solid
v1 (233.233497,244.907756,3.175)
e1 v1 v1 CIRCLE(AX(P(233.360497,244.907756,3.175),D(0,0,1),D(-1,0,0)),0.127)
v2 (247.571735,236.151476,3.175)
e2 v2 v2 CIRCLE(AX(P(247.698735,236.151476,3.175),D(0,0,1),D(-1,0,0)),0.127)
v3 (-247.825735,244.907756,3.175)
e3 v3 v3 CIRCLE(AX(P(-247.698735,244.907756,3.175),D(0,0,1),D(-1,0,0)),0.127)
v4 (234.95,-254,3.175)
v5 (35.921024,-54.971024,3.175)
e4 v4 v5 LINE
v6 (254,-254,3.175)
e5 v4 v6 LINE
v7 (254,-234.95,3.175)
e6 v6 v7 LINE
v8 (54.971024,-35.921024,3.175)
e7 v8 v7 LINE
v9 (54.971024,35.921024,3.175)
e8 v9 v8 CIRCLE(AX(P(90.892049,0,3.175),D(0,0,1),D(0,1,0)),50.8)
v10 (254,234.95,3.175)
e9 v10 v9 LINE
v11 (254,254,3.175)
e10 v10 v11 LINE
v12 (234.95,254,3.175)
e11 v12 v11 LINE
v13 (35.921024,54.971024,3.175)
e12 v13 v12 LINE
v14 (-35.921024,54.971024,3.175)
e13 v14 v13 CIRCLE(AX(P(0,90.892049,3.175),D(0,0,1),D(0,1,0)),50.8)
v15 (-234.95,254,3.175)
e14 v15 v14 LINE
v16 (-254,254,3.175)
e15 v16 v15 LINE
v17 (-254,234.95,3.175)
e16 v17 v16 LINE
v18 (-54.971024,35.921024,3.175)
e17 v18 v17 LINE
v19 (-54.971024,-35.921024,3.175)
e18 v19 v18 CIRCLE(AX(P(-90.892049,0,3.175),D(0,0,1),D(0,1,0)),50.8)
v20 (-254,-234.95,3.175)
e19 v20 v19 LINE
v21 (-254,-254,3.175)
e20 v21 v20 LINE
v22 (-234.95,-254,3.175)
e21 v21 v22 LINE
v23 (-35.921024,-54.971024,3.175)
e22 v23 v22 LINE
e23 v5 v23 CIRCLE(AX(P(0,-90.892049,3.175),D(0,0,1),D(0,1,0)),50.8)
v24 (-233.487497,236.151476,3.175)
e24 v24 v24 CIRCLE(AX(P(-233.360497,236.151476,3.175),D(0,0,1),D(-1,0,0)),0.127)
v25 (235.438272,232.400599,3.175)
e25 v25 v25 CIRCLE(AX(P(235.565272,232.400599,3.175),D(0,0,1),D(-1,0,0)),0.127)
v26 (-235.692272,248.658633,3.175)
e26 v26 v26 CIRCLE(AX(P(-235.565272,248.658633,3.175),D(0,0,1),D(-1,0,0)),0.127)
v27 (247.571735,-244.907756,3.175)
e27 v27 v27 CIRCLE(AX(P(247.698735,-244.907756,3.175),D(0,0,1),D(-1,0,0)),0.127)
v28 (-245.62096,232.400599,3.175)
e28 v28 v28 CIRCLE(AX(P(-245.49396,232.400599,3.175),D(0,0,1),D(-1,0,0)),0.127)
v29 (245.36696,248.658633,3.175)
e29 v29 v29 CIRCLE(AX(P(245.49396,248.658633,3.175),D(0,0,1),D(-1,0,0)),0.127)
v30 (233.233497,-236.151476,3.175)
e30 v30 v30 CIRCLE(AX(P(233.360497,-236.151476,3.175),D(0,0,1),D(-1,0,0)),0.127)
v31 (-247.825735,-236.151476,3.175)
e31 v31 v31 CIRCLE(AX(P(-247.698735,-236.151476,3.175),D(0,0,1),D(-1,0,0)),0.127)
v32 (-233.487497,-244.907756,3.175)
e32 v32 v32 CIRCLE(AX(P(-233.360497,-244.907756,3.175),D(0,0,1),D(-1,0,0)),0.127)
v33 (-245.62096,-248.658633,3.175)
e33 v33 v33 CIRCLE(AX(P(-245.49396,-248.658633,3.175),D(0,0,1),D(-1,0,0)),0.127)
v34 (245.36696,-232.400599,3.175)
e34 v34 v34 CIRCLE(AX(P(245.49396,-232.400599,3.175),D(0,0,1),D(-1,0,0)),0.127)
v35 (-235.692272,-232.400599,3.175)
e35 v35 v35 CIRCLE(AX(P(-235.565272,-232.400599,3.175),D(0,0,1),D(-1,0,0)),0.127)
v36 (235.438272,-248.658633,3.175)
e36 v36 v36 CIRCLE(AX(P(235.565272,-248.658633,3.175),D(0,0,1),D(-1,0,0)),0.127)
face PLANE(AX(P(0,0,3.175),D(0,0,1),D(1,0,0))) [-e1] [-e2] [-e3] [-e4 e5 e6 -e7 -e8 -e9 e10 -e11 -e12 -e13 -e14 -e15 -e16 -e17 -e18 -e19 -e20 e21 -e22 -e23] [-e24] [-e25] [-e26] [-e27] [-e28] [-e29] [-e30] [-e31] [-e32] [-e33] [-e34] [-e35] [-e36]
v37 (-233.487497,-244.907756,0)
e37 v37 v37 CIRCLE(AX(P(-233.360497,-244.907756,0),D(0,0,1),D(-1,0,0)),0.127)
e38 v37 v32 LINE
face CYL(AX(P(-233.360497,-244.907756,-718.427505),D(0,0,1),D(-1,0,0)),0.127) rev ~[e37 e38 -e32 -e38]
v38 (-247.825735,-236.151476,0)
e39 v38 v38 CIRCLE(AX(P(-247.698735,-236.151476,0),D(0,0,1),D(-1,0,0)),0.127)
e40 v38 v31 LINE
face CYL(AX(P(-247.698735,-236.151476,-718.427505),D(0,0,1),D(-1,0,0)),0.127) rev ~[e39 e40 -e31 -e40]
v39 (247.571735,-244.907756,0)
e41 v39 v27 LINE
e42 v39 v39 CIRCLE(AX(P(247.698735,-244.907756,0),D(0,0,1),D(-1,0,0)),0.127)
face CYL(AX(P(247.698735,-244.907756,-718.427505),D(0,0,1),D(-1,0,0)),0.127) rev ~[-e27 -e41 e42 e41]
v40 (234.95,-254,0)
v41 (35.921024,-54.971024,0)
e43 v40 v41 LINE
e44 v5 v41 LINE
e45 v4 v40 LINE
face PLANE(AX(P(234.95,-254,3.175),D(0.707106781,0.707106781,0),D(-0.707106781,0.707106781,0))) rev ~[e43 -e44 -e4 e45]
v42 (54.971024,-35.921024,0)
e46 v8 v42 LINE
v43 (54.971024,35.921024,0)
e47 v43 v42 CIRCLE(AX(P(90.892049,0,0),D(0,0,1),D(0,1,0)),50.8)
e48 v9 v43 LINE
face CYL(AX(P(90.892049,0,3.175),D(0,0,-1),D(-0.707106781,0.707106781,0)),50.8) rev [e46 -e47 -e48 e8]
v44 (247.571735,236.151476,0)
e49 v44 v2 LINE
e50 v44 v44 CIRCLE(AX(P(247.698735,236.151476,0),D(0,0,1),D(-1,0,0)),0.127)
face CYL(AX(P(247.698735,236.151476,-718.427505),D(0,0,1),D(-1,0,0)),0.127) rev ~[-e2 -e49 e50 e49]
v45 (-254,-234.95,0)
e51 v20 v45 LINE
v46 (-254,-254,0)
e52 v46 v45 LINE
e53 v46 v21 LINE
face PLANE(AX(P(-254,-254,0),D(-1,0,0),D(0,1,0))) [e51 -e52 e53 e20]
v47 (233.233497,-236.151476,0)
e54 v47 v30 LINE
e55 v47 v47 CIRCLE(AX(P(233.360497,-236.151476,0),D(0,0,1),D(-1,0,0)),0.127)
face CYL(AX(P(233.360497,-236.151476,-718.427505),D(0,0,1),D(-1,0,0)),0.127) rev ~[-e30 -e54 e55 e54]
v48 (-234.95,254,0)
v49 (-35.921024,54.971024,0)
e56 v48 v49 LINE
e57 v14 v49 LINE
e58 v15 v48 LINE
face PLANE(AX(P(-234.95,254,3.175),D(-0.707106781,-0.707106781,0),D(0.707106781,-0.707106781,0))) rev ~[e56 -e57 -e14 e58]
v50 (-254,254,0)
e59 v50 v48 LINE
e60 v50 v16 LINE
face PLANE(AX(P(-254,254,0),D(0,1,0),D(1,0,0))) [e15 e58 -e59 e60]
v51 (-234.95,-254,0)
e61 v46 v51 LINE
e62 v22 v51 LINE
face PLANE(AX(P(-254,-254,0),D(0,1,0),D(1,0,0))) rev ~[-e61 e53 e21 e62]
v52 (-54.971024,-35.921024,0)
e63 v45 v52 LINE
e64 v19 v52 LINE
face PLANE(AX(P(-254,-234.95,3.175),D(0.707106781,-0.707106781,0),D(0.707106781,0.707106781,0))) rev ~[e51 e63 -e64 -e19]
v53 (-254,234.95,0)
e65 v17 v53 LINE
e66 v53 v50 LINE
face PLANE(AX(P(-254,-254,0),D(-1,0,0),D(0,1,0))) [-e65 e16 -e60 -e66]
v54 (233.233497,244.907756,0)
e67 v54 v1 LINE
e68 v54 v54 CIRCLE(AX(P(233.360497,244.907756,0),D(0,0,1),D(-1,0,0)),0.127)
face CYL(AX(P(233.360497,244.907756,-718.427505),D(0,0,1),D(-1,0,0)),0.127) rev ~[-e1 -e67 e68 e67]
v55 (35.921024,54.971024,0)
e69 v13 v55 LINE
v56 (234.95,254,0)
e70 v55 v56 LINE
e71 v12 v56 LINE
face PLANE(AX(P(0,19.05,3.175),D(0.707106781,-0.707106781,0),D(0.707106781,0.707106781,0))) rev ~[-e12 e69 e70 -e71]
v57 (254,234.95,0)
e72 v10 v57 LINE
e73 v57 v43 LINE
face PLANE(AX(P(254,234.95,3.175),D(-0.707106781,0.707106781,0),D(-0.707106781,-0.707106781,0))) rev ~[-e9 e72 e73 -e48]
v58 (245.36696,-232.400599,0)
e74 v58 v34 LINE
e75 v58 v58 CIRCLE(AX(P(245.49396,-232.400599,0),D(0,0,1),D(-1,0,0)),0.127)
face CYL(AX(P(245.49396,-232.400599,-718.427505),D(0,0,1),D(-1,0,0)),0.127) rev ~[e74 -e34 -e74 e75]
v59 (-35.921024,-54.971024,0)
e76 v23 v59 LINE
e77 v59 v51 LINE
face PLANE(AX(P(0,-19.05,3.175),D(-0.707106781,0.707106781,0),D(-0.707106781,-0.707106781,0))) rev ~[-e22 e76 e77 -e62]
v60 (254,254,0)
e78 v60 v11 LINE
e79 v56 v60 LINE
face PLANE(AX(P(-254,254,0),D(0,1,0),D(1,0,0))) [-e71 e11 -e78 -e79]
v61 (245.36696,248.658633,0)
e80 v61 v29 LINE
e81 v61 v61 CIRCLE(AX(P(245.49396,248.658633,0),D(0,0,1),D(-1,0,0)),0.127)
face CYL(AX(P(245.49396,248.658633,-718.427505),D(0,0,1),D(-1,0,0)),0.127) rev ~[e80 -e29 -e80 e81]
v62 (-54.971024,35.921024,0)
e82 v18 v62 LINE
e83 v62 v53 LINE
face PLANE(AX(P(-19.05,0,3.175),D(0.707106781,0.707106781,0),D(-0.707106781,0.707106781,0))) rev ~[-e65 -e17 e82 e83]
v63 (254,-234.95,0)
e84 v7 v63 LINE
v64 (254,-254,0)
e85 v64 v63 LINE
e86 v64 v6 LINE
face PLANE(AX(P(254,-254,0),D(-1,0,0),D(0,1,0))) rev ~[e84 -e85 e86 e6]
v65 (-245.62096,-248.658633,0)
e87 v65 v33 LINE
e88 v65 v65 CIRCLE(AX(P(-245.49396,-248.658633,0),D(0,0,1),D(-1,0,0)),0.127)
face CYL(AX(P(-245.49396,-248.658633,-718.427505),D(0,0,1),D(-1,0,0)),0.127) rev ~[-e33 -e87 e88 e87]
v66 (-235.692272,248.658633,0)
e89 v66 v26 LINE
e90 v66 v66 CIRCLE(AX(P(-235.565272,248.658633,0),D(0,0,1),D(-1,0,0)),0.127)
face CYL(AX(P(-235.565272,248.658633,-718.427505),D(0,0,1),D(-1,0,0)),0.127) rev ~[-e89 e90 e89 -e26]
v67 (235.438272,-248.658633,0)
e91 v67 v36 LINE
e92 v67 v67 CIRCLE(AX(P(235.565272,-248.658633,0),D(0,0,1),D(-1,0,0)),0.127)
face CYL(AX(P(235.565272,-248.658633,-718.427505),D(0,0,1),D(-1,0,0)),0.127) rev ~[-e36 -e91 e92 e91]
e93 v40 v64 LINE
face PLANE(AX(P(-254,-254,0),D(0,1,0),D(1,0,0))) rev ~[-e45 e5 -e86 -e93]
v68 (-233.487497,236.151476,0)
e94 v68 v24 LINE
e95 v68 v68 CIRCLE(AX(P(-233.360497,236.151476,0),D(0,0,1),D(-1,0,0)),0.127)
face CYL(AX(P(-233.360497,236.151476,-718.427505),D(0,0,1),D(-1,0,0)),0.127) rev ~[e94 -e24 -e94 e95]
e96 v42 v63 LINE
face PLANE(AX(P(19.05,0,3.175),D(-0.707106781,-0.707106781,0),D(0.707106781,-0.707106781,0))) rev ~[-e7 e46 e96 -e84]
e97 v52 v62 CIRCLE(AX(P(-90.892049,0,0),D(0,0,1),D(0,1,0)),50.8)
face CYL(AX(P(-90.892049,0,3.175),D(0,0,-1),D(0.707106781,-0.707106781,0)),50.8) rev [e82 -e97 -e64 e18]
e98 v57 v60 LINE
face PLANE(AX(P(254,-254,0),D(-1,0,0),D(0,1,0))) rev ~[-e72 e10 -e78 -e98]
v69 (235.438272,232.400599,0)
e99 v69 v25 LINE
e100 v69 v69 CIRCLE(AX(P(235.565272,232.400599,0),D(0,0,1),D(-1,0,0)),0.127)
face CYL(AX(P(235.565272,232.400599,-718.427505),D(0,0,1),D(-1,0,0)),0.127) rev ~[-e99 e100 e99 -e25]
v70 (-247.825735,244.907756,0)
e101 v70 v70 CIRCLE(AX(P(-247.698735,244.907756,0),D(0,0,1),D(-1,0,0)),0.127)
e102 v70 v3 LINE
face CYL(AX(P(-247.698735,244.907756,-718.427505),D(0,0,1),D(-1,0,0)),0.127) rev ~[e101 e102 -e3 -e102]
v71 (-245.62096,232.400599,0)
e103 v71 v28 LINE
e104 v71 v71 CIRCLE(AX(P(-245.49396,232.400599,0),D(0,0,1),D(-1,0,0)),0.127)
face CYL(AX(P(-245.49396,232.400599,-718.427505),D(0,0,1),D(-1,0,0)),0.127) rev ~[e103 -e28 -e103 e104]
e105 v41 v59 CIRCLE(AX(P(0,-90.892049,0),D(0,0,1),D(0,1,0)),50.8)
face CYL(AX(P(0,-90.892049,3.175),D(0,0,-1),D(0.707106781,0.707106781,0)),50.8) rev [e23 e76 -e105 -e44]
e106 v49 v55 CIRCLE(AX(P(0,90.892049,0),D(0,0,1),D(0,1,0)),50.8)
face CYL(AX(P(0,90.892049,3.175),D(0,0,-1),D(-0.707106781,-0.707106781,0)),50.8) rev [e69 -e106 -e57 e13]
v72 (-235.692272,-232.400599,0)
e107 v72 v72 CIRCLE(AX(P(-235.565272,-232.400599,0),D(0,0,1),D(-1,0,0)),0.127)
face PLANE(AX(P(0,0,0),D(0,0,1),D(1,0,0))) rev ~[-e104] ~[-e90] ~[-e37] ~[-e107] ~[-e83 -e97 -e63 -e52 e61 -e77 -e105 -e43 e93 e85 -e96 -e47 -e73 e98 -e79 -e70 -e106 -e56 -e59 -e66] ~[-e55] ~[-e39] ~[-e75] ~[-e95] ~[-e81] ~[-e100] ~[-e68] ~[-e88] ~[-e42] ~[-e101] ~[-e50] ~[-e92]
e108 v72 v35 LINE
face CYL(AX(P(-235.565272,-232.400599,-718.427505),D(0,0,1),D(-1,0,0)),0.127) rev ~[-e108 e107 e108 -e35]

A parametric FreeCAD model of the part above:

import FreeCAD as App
import Part
import Sketcher

V = App.Vector
Q = App.Units.Quantity


def edges_at(feature, points):
    """Names of the edges that pass closest to the given points."""
    edges = feature.Shape.Edges
    near = lambda p: min(range(len(edges)), key=lambda i: edges[i].distToShape(Part.Vertex(*p))[0])
    return sorted({f"Edge{near(p) + 1}" for p in points})


def add_polygon(sketch, points):
    """Adds a closed chain of lines whose ends are joined by coincident constraints."""
    first, n = sketch.GeometryCount, len(points)
    for a, b in zip(points, points[1:] + points[:1]):
        sketch.addGeometry(Part.LineSegment(App.Vector(*a, 0), App.Vector(*b, 0)), False)
    for i in range(n):
        sketch.addConstraint(Sketcher.Constraint("Coincident", first + i, 2, first + (i + 1) % n, 1))

doc = App.newDocument("Part")
body = doc.addObject("PartDesign::Body", "Body")

# Sketch on XY plane
sketch1 = body.newObject("Sketcher::SketchObject", "Sketch")
sketch1.AttachmentSupport = (doc.getObject("XY_Plane"), [""])
sketch1.MapMode = "FlatFace"
add_polygon(sketch1, [(-254, 254), (-254, -254), (254, -254), (254, 254)])  # lines 0-3
sketch1.addConstraint(Sketcher.Constraint("Vertical", 0))
sketch1.addConstraint(Sketcher.Constraint("Horizontal", 1))
sketch1.addConstraint(Sketcher.Constraint("Vertical", 2))
sketch1.addConstraint(Sketcher.Constraint("Horizontal", 3))
sketch1.addConstraint(Sketcher.Constraint("Symmetric", 0, 2, 2, 2, -1, 1))
sketch1.addConstraint(Sketcher.Constraint("Equal", 3, 0))
sketch1.addConstraint(Sketcher.Constraint("DistanceX", 1, 1, 1, 2, Q("20 in")))
pad1 = body.newObject("PartDesign::Pad", "Pad")
pad1.Profile = sketch1
pad1.Length = Q("0.125 in")

# Sketch on XY plane
sketch2 = body.newObject("Sketcher::SketchObject", "Sketch001")
sketch2.AttachmentSupport = (doc.getObject("XY_Plane"), [""])
sketch2.MapMode = "FlatFace"
sketch2.AttachmentOffset = App.Placement(V(0, 0, 0.125 * 25.4), App.Rotation())
add_polygon(sketch2, [(-19, 0), (-254, 235), (-254, -235)])  # lines 0-2
add_polygon(sketch2, [(-235, 254), (0, 19), (235, 254)])  # lines 3-5
add_polygon(sketch2, [(254, -235), (254, 235), (19, 0)])  # lines 6-8
add_polygon(sketch2, [(-235, -254), (235, -254), (0, -19)])  # lines 9-11
sketch2.addConstraint(Sketcher.Constraint("Vertical", 1))
sketch2.addConstraint(Sketcher.Constraint("Horizontal", 5))
sketch2.addConstraint(Sketcher.Constraint("Vertical", 6))
sketch2.addConstraint(Sketcher.Constraint("Horizontal", 9))
sketch2.addConstraint(Sketcher.Constraint("Symmetric", 1, 2, 6, 2, -1, 1))
sketch2.addConstraint(Sketcher.Constraint("Symmetric", 2, 2, 7, 2, -1, 1))
sketch2.addConstraint(Sketcher.Constraint("Symmetric", 5, 2, 9, 2, -1, 1))
sketch2.addConstraint(Sketcher.Constraint("Symmetric", 3, 2, 10, 2, -1, 1))
sketch2.addConstraint(Sketcher.Constraint("PointOnObject", 2, 2, -1))
sketch2.addConstraint(Sketcher.Constraint("PointOnObject", 3, 2, -2))
sketch2.addConstraint(Sketcher.Constraint("Perpendicular", 0, 2))
sketch2.addConstraint(Sketcher.Constraint("Perpendicular", 2, 3))
sketch2.addConstraint(Sketcher.Constraint("Perpendicular", 3, 4))
sketch2.addConstraint(Sketcher.Constraint("Perpendicular", 7, 8))
sketch2.addConstraint(Sketcher.Constraint("Perpendicular", 10, 11))
sketch2.addConstraint(Sketcher.Constraint("Horizontal", 0, 2, 6, 2))
sketch2.addConstraint(Sketcher.Constraint("Equal", 9, 1))
sketch2.addConstraint(Sketcher.Constraint("DistanceX", 5, 2, 5, 1, Q("18.5 in")))
sketch2.addConstraint(Sketcher.Constraint("DistanceX", 0, 2, -1, 1, Q("10 in")))
sketch2.addConstraint(Sketcher.Constraint("DistanceY", -1, 1, 4, 2, Q("10 in")))
pocket1 = body.newObject("PartDesign::Pocket", "Pocket")
pocket1.Profile = sketch2
pocket1.Type = "ThroughAll"
doc.recompute()

fillet = body.newObject("PartDesign::Fillet", "Fillet")
fillet.Base = (pocket1, edges_at(pocket1, [
    (-19.05, 0, 1.587),
    (0, -19.05, 1.587),
    (19.05, 0, 1.587),
    (0, 19.05, 1.587),
]))
fillet.Radius = Q("2 in")

# Sketch on XY plane
sketch3 = body.newObject("Sketcher::SketchObject", "Sketch002")
sketch3.AttachmentSupport = (doc.getObject("XY_Plane"), [""])
sketch3.MapMode = "FlatFace"
sketch3.addGeometry(Part.Circle(V(-247.7, 244.91, 0), V(0, 0, 1), 0.13), False)
sketch3.addGeometry(Part.Circle(V(-245.49, 232.4, 0), V(0, 0, 1), 0.13), False)
sketch3.addGeometry(Part.Circle(V(-233.36, 236.15, 0), V(0, 0, 1), 0.13), False)
sketch3.addGeometry(Part.Circle(V(-235.57, 248.66, 0), V(0, 0, 1), 0.13), False)
sketch3.addGeometry(Part.Circle(V(-245.49, -248.66, 0), V(0, 0, 1), 0.13), False)
sketch3.addGeometry(Part.Circle(V(-233.36, -244.91, 0), V(0, 0, 1), 0.13), False)
sketch3.addGeometry(Part.Circle(V(-235.57, -232.4, 0), V(0, 0, 1), 0.13), False)
sketch3.addGeometry(Part.Circle(V(-247.7, -236.15, 0), V(0, 0, 1), 0.13), False)
sketch3.addGeometry(Part.Circle(V(233.36, 244.91, 0), V(0, 0, 1), 0.13), False)
sketch3.addGeometry(Part.Circle(V(245.49, 248.66, 0), V(0, 0, 1), 0.13), False)
sketch3.addGeometry(Part.Circle(V(247.7, 236.15, 0), V(0, 0, 1), 0.13), False)
sketch3.addGeometry(Part.Circle(V(235.57, 232.4, 0), V(0, 0, 1), 0.13), False)
sketch3.addGeometry(Part.Circle(V(245.49, -232.4, 0), V(0, 0, 1), 0.13), False)
sketch3.addGeometry(Part.Circle(V(233.36, -236.15, 0), V(0, 0, 1), 0.13), False)
sketch3.addGeometry(Part.Circle(V(235.57, -248.66, 0), V(0, 0, 1), 0.13), False)
sketch3.addGeometry(Part.Circle(V(247.7, -244.91, 0), V(0, 0, 1), 0.13), False)
sketch3.addConstraint(Sketcher.Constraint("Equal", 0, 1))
sketch3.addConstraint(Sketcher.Constraint("Equal", 1, 2))
sketch3.addConstraint(Sketcher.Constraint("Equal", 2, 3))
sketch3.addConstraint(Sketcher.Constraint("Equal", 3, 4))
sketch3.addConstraint(Sketcher.Constraint("Equal", 4, 5))
sketch3.addConstraint(Sketcher.Constraint("Equal", 5, 6))
sketch3.addConstraint(Sketcher.Constraint("Equal", 6, 7))
sketch3.addConstraint(Sketcher.Constraint("Equal", 7, 8))
sketch3.addConstraint(Sketcher.Constraint("Equal", 8, 9))
sketch3.addConstraint(Sketcher.Constraint("Equal", 9, 10))
sketch3.addConstraint(Sketcher.Constraint("Equal", 10, 11))
sketch3.addConstraint(Sketcher.Constraint("Equal", 11, 12))
sketch3.addConstraint(Sketcher.Constraint("Equal", 12, 13))
sketch3.addConstraint(Sketcher.Constraint("Equal", 13, 14))
sketch3.addConstraint(Sketcher.Constraint("Equal", 14, 15))
sketch3.addConstraint(Sketcher.Constraint("Symmetric", 5, 3, 8, 3, -1, 1))
sketch3.addConstraint(Sketcher.Constraint("Symmetric", 4, 3, 9, 3, -1, 1))
sketch3.addConstraint(Sketcher.Constraint("Symmetric", 7, 3, 10, 3, -1, 1))
sketch3.addConstraint(Sketcher.Constraint("Symmetric", 6, 3, 11, 3, -1, 1))
sketch3.addConstraint(Sketcher.Constraint("Symmetric", 1, 3, 12, 3, -1, 1))
sketch3.addConstraint(Sketcher.Constraint("Symmetric", 2, 3, 13, 3, -1, 1))
sketch3.addConstraint(Sketcher.Constraint("Symmetric", 3, 3, 14, 3, -1, 1))
sketch3.addConstraint(Sketcher.Constraint("Symmetric", 0, 3, 15, 3, -1, 1))
sketch3.addConstraint(Sketcher.Constraint("Horizontal", 0, 3, 8, 3))
sketch3.addConstraint(Sketcher.Constraint("Horizontal", 3, 3, 9, 3))
sketch3.addConstraint(Sketcher.Constraint("Horizontal", 2, 3, 10, 3))
sketch3.addConstraint(Sketcher.Constraint("Horizontal", 1, 3, 11, 3))
sketch3.addConstraint(Sketcher.Constraint("Vertical", 1, 3, 4, 3))
sketch3.addConstraint(Sketcher.Constraint("Vertical", 2, 3, 5, 3))
sketch3.addConstraint(Sketcher.Constraint("Vertical", 3, 3, 6, 3))
sketch3.addConstraint(Sketcher.Constraint("Vertical", 0, 3, 7, 3))
sketch3.addConstraint(Sketcher.Constraint("Diameter", 0, Q("0.01 in")))
sketch3.addConstraint(Sketcher.Constraint("DistanceY", -1, 1, 1, 3, Q("232.400599 mm")))
sketch3.addConstraint(Sketcher.Constraint("DistanceX", 1, 3, -1, 1, Q("245.49396 mm")))
sketch3.addConstraint(Sketcher.Constraint("DistanceX", 3, 3, -1, 1, Q("235.565272 mm")))
sketch3.addConstraint(Sketcher.Constraint("DistanceY", 2, 3, 0, 3, Q("8.75628 mm")))
sketch3.addConstraint(Sketcher.Constraint("DistanceY", 4, 3, 1, 3, Q("481.059232 mm")))
sketch3.addConstraint(Sketcher.Constraint("DistanceY", 4, 3, 2, 3, Q("484.810109 mm")))
sketch3.addConstraint(Sketcher.Constraint("DistanceX", 3, 3, 8, 3, Q("468.925769 mm")))
sketch3.addConstraint(Sketcher.Constraint("DistanceX", 0, 3, 8, 3, Q("481.059232 mm")))
doc.recompute()
hole = body.newObject("PartDesign::Hole", "Hole")
hole.Profile = sketch3
hole.ThreadType = "None"
hole.Diameter = Q("0.01 in")
hole.DepthType = "ThroughAll"
hole.Reversed = True

doc.recompute()
